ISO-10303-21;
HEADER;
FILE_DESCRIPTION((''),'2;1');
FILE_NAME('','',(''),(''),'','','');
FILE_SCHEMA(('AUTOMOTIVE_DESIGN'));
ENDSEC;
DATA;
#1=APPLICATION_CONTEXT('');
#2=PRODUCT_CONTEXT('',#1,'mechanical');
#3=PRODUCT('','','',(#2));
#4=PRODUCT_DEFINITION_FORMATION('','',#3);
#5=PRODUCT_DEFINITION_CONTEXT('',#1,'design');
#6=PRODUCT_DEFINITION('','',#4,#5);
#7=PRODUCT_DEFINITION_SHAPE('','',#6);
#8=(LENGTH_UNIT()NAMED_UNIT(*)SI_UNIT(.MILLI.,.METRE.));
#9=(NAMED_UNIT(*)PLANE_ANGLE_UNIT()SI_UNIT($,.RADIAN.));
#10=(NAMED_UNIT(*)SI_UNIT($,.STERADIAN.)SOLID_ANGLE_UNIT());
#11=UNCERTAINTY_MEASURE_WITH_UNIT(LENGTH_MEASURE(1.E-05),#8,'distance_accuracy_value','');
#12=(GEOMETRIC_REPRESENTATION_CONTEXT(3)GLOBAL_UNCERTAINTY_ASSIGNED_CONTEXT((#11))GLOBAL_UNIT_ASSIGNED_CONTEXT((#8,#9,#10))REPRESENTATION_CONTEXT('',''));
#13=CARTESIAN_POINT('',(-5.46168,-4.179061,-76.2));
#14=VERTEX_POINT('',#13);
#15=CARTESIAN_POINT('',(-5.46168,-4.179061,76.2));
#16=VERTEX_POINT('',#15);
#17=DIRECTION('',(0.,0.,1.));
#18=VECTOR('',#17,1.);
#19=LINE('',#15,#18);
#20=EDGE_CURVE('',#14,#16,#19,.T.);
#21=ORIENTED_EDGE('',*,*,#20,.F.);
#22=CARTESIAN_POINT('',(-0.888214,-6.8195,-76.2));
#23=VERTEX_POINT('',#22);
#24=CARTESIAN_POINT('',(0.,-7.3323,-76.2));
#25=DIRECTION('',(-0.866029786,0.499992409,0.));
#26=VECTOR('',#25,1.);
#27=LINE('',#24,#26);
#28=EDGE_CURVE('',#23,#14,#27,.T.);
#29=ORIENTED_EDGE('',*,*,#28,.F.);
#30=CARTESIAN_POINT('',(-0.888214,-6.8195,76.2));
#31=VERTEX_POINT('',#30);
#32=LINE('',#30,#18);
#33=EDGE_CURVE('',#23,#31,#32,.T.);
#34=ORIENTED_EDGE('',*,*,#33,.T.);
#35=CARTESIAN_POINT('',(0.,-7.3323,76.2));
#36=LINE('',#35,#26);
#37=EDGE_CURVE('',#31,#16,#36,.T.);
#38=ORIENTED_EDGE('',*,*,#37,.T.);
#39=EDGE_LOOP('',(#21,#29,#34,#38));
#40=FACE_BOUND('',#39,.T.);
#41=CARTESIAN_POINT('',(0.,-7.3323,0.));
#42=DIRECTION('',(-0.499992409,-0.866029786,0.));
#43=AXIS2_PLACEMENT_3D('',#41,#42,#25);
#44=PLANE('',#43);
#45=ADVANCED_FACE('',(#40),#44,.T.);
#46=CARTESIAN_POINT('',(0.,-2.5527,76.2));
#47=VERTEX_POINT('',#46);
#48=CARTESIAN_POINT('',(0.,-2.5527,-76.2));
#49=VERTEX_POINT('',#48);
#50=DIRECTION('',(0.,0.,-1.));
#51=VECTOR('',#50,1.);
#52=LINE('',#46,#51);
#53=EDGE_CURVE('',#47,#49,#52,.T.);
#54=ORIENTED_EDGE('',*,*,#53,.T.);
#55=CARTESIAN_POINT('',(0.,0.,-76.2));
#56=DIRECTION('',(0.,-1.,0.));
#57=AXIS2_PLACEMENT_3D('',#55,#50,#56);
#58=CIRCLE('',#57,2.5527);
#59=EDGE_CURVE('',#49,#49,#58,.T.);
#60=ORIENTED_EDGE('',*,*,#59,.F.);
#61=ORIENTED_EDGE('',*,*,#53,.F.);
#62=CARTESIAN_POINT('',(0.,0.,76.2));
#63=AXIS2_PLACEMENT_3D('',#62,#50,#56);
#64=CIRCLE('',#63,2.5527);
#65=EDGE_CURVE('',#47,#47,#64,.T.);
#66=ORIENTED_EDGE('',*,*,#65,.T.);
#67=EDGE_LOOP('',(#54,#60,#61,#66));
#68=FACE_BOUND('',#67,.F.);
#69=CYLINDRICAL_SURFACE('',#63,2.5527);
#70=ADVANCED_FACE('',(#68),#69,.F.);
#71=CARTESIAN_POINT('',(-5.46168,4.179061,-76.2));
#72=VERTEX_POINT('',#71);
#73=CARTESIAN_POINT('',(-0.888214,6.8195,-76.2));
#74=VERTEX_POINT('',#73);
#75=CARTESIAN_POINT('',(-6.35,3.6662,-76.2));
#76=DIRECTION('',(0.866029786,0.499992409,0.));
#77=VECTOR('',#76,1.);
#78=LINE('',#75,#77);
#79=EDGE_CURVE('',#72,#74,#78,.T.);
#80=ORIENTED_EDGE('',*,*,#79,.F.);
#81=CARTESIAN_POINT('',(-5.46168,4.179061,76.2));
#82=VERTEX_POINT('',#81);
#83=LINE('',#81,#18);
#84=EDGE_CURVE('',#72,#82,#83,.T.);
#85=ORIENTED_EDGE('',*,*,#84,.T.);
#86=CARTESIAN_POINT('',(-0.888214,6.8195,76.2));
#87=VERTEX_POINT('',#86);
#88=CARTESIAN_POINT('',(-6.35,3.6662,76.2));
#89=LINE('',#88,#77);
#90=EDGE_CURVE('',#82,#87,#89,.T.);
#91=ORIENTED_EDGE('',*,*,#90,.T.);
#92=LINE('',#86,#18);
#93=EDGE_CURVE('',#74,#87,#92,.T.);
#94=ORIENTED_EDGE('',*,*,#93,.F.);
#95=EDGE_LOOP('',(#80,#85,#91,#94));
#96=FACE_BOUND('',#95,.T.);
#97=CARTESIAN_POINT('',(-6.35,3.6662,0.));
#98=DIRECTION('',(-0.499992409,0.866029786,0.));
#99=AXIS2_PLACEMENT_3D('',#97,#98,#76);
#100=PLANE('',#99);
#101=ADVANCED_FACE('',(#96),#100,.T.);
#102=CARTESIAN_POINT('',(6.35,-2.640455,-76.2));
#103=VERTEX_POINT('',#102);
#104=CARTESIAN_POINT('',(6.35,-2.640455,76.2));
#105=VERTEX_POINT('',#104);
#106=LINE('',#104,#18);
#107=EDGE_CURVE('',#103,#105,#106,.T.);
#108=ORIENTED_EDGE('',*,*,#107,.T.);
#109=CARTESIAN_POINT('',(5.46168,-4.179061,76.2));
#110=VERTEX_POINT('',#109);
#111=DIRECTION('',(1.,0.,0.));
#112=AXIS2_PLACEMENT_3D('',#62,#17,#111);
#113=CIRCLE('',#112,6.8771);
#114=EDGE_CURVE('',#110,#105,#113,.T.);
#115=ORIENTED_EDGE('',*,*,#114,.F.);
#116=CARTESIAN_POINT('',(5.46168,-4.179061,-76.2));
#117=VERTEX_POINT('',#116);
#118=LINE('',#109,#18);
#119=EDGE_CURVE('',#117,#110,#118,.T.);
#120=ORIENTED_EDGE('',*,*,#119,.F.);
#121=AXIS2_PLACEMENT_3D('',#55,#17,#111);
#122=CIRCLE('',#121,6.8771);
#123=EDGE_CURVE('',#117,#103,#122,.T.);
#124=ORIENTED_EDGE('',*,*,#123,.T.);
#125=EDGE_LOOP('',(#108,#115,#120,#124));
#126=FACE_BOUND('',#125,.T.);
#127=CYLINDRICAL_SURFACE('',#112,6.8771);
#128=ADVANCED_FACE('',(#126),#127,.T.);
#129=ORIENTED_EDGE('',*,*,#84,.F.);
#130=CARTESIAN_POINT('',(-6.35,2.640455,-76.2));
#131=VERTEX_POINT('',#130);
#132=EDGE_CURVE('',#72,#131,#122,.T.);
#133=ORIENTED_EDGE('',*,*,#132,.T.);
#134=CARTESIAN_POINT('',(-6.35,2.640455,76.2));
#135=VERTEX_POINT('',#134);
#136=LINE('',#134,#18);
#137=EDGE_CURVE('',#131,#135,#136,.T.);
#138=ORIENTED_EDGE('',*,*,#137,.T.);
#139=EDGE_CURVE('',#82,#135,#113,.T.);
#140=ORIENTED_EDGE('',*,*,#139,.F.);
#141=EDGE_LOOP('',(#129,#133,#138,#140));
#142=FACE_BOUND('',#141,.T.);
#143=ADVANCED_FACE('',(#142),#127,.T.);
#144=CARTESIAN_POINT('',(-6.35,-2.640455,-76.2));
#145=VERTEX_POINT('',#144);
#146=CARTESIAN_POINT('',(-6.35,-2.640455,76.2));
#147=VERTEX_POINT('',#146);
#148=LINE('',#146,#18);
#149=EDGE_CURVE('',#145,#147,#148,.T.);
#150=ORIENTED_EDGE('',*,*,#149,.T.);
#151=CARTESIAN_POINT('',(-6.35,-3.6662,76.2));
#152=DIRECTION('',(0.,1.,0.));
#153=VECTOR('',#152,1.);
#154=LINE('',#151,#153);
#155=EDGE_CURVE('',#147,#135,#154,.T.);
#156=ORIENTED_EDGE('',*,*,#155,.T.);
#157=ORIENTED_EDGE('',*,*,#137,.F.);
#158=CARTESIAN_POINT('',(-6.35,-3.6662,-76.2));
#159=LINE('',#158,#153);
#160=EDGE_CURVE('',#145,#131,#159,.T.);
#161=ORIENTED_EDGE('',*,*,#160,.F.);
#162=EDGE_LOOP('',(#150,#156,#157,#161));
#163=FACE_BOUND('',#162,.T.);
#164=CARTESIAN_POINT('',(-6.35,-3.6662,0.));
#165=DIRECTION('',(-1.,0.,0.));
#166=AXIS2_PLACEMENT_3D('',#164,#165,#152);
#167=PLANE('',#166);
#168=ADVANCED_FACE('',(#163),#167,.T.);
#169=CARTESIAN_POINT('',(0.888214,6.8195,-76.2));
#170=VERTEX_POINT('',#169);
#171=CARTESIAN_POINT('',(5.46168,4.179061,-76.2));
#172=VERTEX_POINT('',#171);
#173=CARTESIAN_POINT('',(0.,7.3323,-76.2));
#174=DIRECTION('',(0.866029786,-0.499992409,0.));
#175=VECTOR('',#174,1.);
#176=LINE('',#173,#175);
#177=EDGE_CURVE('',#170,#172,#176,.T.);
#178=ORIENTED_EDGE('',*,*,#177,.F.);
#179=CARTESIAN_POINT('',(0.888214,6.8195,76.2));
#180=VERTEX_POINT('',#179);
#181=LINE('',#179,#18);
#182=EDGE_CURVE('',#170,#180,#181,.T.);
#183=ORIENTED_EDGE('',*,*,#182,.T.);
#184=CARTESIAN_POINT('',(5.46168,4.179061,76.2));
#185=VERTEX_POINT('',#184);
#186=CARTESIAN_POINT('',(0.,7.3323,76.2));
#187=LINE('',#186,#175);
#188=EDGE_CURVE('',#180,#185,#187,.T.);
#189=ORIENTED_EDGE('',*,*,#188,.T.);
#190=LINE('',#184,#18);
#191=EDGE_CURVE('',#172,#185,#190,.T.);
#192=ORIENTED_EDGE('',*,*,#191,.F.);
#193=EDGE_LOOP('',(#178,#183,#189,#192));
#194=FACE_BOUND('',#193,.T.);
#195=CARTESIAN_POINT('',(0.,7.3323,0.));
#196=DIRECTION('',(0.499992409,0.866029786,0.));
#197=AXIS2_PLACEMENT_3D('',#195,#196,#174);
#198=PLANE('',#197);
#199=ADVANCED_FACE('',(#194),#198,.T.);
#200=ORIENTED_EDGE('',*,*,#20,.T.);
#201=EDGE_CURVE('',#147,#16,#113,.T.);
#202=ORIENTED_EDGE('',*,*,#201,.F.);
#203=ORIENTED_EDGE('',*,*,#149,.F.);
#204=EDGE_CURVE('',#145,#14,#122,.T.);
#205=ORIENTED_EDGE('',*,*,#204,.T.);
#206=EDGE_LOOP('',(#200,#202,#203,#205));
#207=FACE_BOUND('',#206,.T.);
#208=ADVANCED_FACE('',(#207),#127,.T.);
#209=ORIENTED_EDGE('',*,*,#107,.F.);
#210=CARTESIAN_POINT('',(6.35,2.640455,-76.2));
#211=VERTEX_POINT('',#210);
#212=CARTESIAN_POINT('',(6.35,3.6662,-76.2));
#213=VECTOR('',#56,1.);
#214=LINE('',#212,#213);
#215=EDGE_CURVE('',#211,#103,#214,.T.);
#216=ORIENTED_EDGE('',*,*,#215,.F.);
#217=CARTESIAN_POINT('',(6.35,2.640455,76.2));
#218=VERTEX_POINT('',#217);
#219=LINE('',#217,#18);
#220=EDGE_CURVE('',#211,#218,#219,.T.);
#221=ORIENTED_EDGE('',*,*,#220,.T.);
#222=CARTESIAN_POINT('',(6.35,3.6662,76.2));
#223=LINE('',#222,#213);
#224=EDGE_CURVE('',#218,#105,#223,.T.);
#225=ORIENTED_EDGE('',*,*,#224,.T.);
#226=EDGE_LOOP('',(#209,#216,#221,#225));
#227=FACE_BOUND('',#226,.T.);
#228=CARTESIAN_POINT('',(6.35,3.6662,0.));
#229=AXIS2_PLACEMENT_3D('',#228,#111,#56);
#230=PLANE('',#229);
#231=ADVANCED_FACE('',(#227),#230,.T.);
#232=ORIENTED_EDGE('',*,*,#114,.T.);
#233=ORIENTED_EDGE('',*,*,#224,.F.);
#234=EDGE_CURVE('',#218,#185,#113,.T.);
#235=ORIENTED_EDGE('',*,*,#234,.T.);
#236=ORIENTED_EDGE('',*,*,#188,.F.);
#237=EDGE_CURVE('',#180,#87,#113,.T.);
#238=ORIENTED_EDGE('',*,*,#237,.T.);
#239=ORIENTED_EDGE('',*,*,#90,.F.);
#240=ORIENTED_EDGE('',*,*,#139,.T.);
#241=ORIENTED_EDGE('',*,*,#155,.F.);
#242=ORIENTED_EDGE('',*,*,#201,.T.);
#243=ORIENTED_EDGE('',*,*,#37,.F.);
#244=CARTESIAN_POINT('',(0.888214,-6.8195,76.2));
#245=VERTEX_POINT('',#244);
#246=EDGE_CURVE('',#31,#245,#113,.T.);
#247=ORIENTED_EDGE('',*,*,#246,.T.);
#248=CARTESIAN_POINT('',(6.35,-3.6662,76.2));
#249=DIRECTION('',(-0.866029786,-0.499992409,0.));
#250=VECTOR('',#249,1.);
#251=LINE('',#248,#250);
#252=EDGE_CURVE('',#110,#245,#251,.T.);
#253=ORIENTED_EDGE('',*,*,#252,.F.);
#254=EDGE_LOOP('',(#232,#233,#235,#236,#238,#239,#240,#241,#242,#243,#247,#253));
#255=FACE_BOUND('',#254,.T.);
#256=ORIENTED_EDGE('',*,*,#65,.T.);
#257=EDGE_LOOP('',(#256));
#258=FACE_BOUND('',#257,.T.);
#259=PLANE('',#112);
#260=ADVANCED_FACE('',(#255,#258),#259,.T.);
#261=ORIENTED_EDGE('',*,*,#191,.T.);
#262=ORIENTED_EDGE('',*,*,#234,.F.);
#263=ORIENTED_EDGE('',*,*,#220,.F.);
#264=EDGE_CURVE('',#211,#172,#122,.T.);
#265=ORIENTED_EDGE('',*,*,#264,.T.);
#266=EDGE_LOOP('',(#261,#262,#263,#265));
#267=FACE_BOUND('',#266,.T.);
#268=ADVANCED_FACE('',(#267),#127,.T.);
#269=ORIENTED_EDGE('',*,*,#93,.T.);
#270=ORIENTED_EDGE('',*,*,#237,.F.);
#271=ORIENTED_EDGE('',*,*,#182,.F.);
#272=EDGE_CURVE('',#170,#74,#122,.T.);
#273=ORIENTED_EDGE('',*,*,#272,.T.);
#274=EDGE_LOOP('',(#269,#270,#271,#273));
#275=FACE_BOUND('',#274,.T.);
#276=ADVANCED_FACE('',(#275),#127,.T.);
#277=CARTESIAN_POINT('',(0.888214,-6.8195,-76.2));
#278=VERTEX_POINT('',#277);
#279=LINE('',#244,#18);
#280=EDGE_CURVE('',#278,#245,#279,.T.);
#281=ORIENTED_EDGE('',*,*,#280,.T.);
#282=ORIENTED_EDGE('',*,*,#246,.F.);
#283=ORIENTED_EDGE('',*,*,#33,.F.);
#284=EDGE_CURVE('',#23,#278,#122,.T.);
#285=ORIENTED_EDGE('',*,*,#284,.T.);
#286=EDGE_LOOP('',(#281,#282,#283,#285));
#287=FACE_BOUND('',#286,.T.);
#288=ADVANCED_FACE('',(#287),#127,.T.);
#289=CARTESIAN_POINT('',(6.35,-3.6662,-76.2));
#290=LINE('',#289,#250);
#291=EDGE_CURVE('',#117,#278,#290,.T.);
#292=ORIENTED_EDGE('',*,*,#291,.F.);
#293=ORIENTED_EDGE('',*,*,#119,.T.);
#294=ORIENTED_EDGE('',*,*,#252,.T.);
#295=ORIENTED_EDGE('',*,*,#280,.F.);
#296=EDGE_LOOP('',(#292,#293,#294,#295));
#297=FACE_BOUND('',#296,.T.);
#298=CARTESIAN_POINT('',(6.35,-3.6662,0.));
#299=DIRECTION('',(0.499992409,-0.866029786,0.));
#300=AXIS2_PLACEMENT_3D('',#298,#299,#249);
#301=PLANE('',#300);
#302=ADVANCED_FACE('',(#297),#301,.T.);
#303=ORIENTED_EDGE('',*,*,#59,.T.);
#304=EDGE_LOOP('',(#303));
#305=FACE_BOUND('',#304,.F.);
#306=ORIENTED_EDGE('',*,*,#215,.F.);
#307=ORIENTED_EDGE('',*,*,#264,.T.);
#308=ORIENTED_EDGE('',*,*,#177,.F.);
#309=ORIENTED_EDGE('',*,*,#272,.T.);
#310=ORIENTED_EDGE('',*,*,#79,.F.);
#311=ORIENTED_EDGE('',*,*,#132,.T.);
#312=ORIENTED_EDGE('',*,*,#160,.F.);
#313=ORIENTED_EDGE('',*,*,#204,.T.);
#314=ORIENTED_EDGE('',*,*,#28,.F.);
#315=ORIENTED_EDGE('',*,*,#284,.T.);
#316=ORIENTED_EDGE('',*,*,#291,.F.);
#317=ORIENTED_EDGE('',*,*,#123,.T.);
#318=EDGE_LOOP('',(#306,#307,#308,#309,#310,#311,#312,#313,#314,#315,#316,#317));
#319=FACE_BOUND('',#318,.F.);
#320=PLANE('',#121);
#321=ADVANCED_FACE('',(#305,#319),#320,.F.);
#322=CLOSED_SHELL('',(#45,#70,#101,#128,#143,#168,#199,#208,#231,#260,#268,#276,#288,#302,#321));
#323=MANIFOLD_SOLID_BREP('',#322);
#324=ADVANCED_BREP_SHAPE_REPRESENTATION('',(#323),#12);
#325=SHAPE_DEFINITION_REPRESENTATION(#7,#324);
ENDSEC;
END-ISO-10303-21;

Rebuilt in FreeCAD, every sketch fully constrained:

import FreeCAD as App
import Part
import Sketcher
from FreeCAD import Vector
Q = App.Units.Quantity


def add_polygon(sketch, points):
    """Adds a closed chain of lines whose ends are joined by coincident constraints."""
    first, n = sketch.GeometryCount, len(points)
    for a, b in zip(points, points[1:] + points[:1]):
        sketch.addGeometry(Part.LineSegment(App.Vector(*a, 0), App.Vector(*b, 0)), False)
    for i in range(n):
        sketch.addConstraint(Sketcher.Constraint("Coincident", first + i, 2, first + (i + 1) % n, 1))

doc = App.newDocument("Part")
body = doc.addObject("PartDesign::Body", "Body")

sketch1 = body.newObject("Sketcher::SketchObject", "Sketch")
sketch1.AttachmentSupport = (doc.getObject("XY_Plane"), [""])
sketch1.MapMode = "FlatFace"
add_polygon(sketch1, [(-6, 4), (-6, -4), (0, -7), (6, -4), (6, 4), (0, 7)])
sketch1.addConstraint(Sketcher.Constraint("Vertical", 0))
sketch1.addConstraint(Sketcher.Constraint("Vertical", 3))
sketch1.addConstraint(Sketcher.Constraint("Symmetric", 0, 2, 3, 2, -1, 1))
sketch1.addConstraint(Sketcher.Constraint("Symmetric", 1, 2, 4, 2, -1, 1))
sketch1.addConstraint(Sketcher.Constraint("PointOnObject", 1, 2, -2))
sketch1.addConstraint(Sketcher.Constraint("Parallel", 2, 5))
sketch1.addConstraint(Sketcher.Constraint("Horizontal", 0, 2, 2, 2))
sketch1.addConstraint(Sketcher.Constraint("DistanceX", 0, 2, 2, 2, Q("0.5 in")))
sketch1.addConstraint(Sketcher.Constraint("Angle", 1, Q("-29.9995 deg")))
sketch1.addConstraint(Sketcher.Constraint("DistanceY", 1, 2, 3, 2, Q("0.433 in")))
pad1 = body.newObject("PartDesign::Pad", "Pad")
pad1.Profile = sketch1
pad1.Length = Q("6 in")
pad1.Midplane = True

sketch2 = body.newObject("Sketcher::SketchObject", "Sketch001")
sketch2.AttachmentSupport = (doc.getObject("XY_Plane"), [""])
sketch2.MapMode = "FlatFace"
sketch2.AttachmentOffset = App.Placement(Vector(0, 0, 3 * 25.4), App.Rotation())
sketch2.addGeometry(Part.Circle(Vector(0, 0, 0), Vector(0, 0, 1), 2.6), False)
sketch2.addConstraint(Sketcher.Constraint("Coincident", 0, 3, -1, 1))
sketch2.addConstraint(Sketcher.Constraint("Diameter", 0, Q("0.201 in")))
doc.recompute()
hole = body.newObject("PartDesign::Hole", "Hole")
hole.Profile = sketch2
hole.ThreadType = "None"
hole.Diameter = Q("0.201 in")
hole.DepthType = "ThroughAll"

sketch3 = body.newObject("Sketcher::SketchObject", "Sketch002")
sketch3.AttachmentSupport = (doc.getObject("XY_Plane"), [""])
sketch3.MapMode = "FlatFace"
sketch3.AttachmentOffset = App.Placement(Vector(0, 0, 3 * 25.4), App.Rotation())
sketch3.addGeometry(Part.Circle(Vector(0, 0, 0), Vector(0, 0, 1), 9), False)
sketch3.addGeometry(Part.Circle(Vector(0, 0, 0), Vector(0, 0, 1), 7), False)
sketch3.addConstraint(Sketcher.Constraint("Coincident", 0, 3, -1, 1))
sketch3.addConstraint(Sketcher.Constraint("Coincident", 1, 3, -1, 1))
sketch3.addConstraint(Sketcher.Constraint("Diameter", 0, Q("0.7 in")))
sketch3.addConstraint(Sketcher.Constraint("Diameter", 1, Q("0.5415 in")))
pocket1 = body.newObject("PartDesign::Pocket", "Pocket")
pocket1.Profile = sketch3
pocket1.Type = "ThroughAll"

doc.recompute()
